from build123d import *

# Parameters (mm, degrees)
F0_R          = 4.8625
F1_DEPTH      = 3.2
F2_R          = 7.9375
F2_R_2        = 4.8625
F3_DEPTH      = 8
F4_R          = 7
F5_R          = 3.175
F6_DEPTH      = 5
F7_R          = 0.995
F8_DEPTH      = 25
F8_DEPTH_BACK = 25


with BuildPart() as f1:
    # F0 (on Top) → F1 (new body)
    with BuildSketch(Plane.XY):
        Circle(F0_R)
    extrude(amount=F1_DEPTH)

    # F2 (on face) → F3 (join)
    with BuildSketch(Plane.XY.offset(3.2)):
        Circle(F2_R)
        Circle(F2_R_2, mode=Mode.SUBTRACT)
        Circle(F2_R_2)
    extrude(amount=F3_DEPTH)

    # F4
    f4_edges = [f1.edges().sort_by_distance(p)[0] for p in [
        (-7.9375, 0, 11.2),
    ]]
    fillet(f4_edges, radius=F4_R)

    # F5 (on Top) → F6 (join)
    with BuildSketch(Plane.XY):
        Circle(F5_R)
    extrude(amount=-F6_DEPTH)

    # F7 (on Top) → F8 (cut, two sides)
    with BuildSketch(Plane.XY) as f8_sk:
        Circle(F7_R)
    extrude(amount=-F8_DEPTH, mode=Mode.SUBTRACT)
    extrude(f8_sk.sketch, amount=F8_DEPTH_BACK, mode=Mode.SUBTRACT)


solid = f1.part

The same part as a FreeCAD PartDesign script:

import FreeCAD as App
import Part
import Sketcher

V = App.Vector
Q = App.Units.Quantity


def edges_at(feature, points):
    """Names of the edges that pass closest to the given points."""
    edges = feature.Shape.Edges
    near = lambda p: min(range(len(edges)), key=lambda i: edges[i].distToShape(Part.Vertex(*p))[0])
    return sorted({f"Edge{near(p) + 1}" for p in points})

doc = App.newDocument("Part")
body = doc.addObject("PartDesign::Body", "Body")

# Sketch on XY plane
sketch1 = body.newObject("Sketcher::SketchObject", "Sketch")
sketch1.AttachmentSupport = (doc.getObject("XY_Plane"), [""])
sketch1.MapMode = "FlatFace"
sketch1.addGeometry(Part.Circle(V(0, 0, 0), V(0, 0, 1), 4.8625), False)
sketch1.addConstraint(Sketcher.Constraint("Coincident", 0, 3, -1, 1))
sketch1.addConstraint(Sketcher.Constraint("Diameter", 0, Q("9.725 mm")))
pad1 = body.newObject("PartDesign::Pad", "Pad")
pad1.Profile = sketch1
pad1.Length = 3.2

# Sketch on XY plane
sketch2 = body.newObject("Sketcher::SketchObject", "Sketch001")
sketch2.AttachmentSupport = (doc.getObject("XY_Plane"), [""])
sketch2.MapMode = "FlatFace"
sketch2.AttachmentOffset = App.Placement(V(0, 0, 3.2), App.Rotation())
sketch2.addGeometry(Part.Circle(V(0, 0, 0), V(0, 0, 1), 7.9375), False)
sketch2.addConstraint(Sketcher.Constraint("Coincident", 0, 3, -1, 1))
sketch2.addConstraint(Sketcher.Constraint("Diameter", 0, Q("15.875 mm")))
pad2 = body.newObject("PartDesign::Pad", "Pad001")
pad2.Profile = sketch2
pad2.Length = 8
doc.recompute()

fillet = body.newObject("PartDesign::Fillet", "Fillet")
fillet.Base = (pad2, edges_at(pad2, [(-7.938, 0, 11.2)]))
fillet.Radius = 7

# Sketch on XY plane
sketch3 = body.newObject("Sketcher::SketchObject", "Sketch002")
sketch3.AttachmentSupport = (doc.getObject("XY_Plane"), [""])
sketch3.MapMode = "FlatFace"
sketch3.addGeometry(Part.Circle(V(0, 0, 0), V(0, 0, 1), 3.175), False)
sketch3.addConstraint(Sketcher.Constraint("Coincident", 0, 3, -1, 1))
sketch3.addConstraint(Sketcher.Constraint("Diameter", 0, Q("6.35 mm")))
pad3 = body.newObject("PartDesign::Pad", "Pad002")
pad3.Profile = sketch3
pad3.Length = 5
pad3.Reversed = True

# Sketch on XY plane
sketch4 = body.newObject("Sketcher::SketchObject", "Sketch003")
sketch4.AttachmentSupport = (doc.getObject("XY_Plane"), [""])
sketch4.MapMode = "FlatFace"
sketch4.addGeometry(Part.Circle(V(0, 0, 0), V(0, 0, 1), 0.995), False)
sketch4.addConstraint(Sketcher.Constraint("Coincident", 0, 3, -1, 1))
sketch4.addConstraint(Sketcher.Constraint("Diameter", 0, Q("1.99 mm")))
pocket1 = body.newObject("PartDesign::Pocket", "Pocket")
pocket1.Profile = sketch4
pocket1.Type = "ThroughAll"
pocket1.Midplane = True

doc.recompute()
